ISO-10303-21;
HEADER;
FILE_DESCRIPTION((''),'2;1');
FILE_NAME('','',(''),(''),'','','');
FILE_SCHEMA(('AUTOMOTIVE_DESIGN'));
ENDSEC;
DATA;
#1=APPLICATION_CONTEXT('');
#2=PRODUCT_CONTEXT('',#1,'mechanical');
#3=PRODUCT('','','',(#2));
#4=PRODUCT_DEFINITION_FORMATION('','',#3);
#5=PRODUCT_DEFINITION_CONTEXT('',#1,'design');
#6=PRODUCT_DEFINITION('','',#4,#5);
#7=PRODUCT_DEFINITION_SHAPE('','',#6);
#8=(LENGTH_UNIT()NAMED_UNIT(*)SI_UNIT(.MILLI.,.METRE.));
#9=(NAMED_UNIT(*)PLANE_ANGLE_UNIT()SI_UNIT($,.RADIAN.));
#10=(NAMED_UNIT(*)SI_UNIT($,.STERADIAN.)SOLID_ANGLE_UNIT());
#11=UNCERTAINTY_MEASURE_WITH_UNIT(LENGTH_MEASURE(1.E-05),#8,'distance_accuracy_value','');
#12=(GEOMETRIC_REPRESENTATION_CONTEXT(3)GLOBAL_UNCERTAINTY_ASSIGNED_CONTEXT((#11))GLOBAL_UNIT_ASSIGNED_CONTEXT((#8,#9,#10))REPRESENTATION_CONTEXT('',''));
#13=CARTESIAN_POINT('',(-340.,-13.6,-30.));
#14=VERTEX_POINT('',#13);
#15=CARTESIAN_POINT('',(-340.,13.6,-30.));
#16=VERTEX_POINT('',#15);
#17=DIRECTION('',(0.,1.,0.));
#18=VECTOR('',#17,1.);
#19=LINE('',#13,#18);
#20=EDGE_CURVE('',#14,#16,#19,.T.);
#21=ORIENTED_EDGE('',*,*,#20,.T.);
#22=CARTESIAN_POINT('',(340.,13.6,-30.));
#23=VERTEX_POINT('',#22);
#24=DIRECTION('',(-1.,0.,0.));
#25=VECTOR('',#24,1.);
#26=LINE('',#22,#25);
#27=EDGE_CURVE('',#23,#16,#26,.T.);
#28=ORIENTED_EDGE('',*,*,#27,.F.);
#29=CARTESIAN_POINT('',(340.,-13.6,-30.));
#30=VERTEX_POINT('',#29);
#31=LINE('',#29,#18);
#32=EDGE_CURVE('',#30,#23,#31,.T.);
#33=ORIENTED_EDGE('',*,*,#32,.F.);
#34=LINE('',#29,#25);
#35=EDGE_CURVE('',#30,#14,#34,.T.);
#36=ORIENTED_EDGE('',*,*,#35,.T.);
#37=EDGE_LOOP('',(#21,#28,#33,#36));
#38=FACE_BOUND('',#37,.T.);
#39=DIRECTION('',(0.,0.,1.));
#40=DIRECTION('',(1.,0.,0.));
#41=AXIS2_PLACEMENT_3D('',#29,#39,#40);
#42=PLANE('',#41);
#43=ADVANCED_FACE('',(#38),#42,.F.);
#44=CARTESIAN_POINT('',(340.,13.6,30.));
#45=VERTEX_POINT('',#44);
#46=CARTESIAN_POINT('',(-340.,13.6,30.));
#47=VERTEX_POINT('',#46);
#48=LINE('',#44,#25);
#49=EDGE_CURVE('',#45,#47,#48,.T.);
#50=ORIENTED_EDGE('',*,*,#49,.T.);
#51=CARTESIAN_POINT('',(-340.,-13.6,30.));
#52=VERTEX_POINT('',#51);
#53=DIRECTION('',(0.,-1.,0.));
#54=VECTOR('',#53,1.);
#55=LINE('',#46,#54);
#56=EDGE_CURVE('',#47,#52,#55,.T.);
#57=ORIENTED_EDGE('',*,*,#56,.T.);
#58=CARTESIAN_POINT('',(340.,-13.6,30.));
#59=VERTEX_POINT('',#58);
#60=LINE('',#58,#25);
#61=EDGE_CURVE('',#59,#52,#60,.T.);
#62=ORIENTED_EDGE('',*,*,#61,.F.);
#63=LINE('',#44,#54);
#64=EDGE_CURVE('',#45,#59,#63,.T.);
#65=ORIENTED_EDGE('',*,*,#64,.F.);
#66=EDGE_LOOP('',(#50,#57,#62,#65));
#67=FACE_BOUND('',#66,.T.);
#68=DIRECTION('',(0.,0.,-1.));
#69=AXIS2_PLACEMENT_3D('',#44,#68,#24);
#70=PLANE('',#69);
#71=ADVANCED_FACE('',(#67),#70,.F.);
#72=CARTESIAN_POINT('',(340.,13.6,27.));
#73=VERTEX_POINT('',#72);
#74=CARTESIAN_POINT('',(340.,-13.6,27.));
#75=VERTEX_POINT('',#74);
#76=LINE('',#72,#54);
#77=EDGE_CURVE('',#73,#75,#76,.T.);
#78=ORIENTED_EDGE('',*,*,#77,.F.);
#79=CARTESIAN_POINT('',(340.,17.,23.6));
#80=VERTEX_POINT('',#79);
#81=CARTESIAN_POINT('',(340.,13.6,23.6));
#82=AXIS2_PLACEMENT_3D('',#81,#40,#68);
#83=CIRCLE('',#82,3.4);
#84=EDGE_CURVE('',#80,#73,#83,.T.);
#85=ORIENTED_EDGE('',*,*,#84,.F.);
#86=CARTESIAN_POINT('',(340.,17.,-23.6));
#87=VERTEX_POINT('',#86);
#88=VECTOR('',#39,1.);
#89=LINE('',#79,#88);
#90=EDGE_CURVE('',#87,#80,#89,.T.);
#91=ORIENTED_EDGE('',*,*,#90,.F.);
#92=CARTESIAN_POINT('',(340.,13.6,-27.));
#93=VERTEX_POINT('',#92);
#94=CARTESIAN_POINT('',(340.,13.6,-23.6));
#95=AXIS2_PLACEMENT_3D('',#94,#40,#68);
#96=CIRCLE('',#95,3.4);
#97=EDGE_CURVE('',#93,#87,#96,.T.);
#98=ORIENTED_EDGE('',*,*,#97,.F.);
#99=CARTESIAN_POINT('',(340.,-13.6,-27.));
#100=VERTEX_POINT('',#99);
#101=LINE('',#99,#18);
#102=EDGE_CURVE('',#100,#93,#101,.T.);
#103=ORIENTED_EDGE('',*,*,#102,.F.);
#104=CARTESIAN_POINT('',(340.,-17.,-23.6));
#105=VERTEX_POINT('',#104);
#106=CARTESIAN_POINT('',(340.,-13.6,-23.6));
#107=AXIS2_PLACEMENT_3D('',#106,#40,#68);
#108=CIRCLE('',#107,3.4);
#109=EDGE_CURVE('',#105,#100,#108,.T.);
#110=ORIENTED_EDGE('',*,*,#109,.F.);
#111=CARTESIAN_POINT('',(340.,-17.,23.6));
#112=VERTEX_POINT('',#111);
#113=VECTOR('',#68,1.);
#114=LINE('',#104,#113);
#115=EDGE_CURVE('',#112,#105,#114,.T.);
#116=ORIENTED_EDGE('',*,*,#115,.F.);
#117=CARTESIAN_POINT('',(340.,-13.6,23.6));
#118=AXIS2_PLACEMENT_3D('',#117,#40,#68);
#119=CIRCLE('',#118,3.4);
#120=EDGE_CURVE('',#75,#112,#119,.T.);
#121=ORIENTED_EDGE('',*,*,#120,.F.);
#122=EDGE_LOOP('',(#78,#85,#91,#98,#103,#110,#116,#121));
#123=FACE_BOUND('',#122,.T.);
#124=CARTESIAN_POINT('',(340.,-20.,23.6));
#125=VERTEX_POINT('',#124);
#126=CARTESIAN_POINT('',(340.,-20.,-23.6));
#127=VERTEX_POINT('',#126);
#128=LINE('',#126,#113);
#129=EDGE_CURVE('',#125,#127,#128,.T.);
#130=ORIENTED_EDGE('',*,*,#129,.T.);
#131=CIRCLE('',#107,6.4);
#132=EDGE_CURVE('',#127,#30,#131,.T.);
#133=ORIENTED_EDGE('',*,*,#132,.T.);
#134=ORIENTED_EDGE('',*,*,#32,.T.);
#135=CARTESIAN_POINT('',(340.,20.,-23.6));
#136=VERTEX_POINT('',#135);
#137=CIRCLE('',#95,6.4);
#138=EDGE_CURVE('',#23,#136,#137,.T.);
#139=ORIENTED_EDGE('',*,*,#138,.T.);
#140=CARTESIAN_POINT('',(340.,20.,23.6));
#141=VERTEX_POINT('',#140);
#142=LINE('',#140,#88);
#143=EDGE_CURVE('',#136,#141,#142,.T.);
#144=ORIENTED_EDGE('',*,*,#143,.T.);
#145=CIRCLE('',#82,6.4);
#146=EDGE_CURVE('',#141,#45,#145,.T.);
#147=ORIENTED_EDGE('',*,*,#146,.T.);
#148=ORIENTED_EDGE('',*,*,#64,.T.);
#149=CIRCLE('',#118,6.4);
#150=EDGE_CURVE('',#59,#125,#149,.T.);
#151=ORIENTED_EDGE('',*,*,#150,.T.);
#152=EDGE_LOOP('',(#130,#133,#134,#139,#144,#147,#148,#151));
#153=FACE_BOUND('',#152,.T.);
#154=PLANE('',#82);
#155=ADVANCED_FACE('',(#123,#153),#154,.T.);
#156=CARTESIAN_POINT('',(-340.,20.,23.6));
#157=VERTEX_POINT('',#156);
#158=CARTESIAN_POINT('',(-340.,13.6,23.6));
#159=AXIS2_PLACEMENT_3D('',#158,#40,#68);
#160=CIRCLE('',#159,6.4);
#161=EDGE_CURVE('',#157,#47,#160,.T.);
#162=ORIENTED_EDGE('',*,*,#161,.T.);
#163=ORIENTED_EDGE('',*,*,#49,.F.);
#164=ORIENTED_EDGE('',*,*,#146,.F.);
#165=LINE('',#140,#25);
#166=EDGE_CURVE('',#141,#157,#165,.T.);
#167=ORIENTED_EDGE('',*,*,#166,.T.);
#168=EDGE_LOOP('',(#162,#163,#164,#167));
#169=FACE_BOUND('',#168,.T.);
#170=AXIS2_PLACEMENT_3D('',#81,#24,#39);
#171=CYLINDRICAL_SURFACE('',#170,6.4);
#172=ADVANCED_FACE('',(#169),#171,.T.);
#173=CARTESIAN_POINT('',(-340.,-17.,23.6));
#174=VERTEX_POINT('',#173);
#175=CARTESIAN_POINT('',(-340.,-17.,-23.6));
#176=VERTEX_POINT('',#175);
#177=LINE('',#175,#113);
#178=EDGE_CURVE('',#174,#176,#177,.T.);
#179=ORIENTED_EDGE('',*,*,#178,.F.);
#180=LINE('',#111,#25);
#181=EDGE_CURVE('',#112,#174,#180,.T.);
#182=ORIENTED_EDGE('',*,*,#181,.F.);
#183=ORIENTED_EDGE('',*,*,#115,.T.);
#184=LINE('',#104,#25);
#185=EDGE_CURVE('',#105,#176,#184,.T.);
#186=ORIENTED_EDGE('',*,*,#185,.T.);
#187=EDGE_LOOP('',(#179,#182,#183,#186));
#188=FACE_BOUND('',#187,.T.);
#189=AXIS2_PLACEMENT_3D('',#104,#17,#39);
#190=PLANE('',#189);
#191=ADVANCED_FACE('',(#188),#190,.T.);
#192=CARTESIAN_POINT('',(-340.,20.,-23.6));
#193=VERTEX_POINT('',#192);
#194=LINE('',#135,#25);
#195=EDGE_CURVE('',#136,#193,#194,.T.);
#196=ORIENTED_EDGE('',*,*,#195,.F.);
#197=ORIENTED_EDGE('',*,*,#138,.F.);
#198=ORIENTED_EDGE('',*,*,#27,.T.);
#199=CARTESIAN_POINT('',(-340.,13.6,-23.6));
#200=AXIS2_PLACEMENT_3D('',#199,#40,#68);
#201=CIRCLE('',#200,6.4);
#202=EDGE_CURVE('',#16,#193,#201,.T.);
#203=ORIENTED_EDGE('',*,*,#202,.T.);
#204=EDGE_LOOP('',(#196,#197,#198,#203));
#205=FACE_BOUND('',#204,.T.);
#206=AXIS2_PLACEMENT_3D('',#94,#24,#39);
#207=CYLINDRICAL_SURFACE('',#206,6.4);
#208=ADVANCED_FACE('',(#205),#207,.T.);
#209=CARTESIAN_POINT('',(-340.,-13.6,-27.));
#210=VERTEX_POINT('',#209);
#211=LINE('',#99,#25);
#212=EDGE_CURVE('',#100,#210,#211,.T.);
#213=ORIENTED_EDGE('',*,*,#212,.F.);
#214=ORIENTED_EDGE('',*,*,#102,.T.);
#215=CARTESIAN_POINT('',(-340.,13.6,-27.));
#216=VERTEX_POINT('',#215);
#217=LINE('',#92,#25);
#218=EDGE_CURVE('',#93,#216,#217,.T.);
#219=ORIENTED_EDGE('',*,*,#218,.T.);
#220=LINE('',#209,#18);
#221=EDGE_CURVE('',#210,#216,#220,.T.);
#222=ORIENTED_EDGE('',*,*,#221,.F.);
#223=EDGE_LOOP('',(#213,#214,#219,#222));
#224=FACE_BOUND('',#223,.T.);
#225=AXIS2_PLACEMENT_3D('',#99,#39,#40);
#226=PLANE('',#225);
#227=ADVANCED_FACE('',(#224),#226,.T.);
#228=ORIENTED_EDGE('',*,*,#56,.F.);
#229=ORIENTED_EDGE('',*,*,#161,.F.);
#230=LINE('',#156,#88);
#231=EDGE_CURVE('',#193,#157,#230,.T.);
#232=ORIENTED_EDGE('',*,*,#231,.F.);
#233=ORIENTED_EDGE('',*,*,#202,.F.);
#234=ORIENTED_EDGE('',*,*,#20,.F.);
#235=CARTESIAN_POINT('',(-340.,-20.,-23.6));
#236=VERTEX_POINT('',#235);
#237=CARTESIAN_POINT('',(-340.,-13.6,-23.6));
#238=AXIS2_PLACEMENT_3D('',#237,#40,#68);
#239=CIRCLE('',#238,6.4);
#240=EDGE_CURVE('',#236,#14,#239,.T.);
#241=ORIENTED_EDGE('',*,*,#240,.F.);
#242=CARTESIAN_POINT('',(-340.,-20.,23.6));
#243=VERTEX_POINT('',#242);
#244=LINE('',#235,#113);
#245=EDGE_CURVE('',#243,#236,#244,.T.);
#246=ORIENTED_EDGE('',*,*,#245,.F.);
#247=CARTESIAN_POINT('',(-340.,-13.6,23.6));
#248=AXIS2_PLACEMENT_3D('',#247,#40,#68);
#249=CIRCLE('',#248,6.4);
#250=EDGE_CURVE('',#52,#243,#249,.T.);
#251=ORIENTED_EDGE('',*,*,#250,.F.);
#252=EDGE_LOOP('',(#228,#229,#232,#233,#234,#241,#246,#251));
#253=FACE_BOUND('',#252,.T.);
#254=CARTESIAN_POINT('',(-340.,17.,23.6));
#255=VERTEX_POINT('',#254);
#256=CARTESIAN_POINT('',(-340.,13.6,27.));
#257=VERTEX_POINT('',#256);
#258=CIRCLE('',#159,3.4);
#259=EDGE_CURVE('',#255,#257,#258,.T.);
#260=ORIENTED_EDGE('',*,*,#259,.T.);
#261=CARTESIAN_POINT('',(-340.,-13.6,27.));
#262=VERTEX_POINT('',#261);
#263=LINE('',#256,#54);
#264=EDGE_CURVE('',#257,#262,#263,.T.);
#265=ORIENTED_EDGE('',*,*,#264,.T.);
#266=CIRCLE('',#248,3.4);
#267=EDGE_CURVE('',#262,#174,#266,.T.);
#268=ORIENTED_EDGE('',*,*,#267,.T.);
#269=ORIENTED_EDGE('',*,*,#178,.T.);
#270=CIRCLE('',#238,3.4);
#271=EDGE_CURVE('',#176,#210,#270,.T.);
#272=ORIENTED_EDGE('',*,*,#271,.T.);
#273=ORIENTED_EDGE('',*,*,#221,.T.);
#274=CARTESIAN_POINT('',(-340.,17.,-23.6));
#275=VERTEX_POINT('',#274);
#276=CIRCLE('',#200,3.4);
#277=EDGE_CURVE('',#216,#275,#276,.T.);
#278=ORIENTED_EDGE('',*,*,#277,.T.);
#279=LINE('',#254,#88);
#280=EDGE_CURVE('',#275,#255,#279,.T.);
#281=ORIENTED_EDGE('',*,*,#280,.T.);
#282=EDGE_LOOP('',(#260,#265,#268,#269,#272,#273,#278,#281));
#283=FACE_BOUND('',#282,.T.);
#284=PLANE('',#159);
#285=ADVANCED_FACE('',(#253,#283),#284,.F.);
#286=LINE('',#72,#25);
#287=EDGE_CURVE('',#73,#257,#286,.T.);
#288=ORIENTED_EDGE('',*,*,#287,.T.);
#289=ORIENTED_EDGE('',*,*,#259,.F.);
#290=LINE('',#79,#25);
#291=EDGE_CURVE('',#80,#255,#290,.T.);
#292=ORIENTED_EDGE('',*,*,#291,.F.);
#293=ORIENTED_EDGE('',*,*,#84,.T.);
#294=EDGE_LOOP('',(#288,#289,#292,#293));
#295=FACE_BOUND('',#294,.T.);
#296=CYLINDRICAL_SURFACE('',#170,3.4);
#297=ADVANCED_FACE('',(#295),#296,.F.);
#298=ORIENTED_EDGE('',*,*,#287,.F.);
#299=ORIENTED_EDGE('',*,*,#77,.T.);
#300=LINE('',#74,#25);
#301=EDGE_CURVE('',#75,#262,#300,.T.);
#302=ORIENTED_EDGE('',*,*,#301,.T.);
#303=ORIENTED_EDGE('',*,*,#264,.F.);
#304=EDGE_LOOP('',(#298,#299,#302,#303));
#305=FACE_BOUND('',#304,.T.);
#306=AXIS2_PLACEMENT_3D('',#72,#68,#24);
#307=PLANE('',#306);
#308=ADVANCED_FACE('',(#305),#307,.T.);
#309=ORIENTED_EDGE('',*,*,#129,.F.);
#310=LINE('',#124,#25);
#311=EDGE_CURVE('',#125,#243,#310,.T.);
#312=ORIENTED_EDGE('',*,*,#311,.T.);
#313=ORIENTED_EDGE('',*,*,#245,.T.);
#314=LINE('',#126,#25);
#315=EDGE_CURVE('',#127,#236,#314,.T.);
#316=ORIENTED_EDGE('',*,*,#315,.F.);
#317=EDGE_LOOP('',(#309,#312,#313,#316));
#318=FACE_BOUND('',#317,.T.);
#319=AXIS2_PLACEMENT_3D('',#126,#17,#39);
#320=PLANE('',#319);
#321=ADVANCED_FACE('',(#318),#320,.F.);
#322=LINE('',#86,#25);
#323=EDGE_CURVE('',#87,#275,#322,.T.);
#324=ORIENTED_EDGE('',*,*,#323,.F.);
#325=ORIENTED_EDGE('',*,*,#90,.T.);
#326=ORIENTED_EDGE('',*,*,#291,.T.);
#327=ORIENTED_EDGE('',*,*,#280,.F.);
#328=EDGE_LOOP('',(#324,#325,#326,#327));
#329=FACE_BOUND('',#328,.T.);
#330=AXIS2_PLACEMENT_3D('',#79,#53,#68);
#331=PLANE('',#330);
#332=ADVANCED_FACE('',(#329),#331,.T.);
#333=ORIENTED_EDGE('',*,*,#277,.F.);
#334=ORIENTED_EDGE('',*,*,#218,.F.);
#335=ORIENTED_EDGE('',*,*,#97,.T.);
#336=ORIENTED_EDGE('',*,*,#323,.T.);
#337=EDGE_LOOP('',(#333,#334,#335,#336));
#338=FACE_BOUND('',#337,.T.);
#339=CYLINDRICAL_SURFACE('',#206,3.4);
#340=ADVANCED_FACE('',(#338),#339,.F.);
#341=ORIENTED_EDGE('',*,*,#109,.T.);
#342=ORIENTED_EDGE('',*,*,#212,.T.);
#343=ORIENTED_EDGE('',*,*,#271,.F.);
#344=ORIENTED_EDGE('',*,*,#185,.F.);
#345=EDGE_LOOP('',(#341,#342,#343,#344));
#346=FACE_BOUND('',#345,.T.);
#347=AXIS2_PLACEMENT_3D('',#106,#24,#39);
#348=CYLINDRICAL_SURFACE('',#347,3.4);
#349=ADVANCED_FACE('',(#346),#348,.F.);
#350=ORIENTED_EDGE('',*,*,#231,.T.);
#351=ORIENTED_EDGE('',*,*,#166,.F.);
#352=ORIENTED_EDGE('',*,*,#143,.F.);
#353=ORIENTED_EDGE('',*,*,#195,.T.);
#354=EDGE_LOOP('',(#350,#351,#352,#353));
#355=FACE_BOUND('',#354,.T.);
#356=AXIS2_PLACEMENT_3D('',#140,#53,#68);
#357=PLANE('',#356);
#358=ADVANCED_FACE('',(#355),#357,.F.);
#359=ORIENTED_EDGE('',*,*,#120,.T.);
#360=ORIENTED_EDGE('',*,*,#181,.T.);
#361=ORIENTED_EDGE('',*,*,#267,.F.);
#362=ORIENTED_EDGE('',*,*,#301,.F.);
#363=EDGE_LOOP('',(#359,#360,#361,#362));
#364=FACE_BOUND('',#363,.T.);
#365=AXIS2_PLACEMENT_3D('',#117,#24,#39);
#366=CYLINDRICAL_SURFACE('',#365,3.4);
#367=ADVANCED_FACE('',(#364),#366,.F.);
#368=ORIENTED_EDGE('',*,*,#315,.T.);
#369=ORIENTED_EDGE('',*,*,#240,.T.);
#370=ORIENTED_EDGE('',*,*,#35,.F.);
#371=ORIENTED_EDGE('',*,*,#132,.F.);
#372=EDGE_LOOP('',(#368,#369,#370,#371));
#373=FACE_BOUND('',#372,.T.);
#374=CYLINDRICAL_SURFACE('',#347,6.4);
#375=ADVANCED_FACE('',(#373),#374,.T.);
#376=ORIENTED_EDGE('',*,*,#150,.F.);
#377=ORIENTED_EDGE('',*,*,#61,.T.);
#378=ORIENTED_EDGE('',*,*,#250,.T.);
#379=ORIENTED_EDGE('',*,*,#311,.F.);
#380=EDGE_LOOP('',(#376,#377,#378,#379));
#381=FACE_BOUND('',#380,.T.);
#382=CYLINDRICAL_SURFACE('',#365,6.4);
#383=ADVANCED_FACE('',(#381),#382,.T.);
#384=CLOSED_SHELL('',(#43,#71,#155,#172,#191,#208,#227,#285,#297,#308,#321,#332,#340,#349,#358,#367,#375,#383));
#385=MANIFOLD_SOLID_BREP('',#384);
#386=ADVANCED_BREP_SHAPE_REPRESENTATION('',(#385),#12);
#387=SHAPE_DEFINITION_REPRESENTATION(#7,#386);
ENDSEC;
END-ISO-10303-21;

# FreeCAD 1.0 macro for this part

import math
import FreeCAD as App
import Part
import Sketcher
Q = App.Units.Quantity

doc = App.newDocument("Part")
body = doc.addObject("PartDesign::Body", "Body")

# Sketch on YZ plane
sketch1 = doc.addObject("Sketcher::SketchObject", "Sketch")
body.addObject(sketch1)
sketch1.AttachmentSupport = (doc.YZ_Plane, [""])
sketch1.MapMode = "FlatFace"
sketch1.AttachmentOffset = App.Placement(App.Vector(0, 0, -340), App.Rotation())
sketch1.addGeometry(Part.LineSegment(App.Vector(-13.6, -30, 0), App.Vector(13.6, -30, 0)), False)
sketch1.addGeometry(Part.ArcOfCircle(Part.Circle(App.Vector(13.6, -23.6, 0), App.Vector(0, 0, 1), 6.4), math.radians(-90), math.radians(0)), False)
sketch1.addGeometry(Part.LineSegment(App.Vector(20, -23.6, 0), App.Vector(20, 23.6, 0)), False)
sketch1.addGeometry(Part.ArcOfCircle(Part.Circle(App.Vector(13.6, 23.6, 0), App.Vector(0, 0, 1), 6.4), math.radians(0), math.radians(90)), False)
sketch1.addGeometry(Part.LineSegment(App.Vector(13.6, 30, 0), App.Vector(-13.6, 30, 0)), False)
sketch1.addGeometry(Part.ArcOfCircle(Part.Circle(App.Vector(-13.6, 23.6, 0), App.Vector(0, 0, 1), 6.4), math.radians(90), math.radians(180)), False)
sketch1.addGeometry(Part.LineSegment(App.Vector(-20, 23.6, 0), App.Vector(-20, -23.6, 0)), False)
sketch1.addGeometry(Part.ArcOfCircle(Part.Circle(App.Vector(-13.6, -23.6, 0), App.Vector(0, 0, 1), 6.4), math.radians(180), math.radians(270)), False)
sketch1.addGeometry(Part.LineSegment(App.Vector(13.6, -27, 0), App.Vector(-13.6, -27, 0)), False)
sketch1.addGeometry(Part.ArcOfCircle(Part.Circle(App.Vector(-13.6, -23.6, 0), App.Vector(0, 0, 1), 3.4), math.radians(180), math.radians(270)), False)
sketch1.addGeometry(Part.LineSegment(App.Vector(-17, -23.6, 0), App.Vector(-17, 23.6, 0)), False)
sketch1.addGeometry(Part.ArcOfCircle(Part.Circle(App.Vector(-13.6, 23.6, 0), App.Vector(0, 0, 1), 3.4), math.radians(90), math.radians(180)), False)
sketch1.addGeometry(Part.LineSegment(App.Vector(-13.6, 27, 0), App.Vector(13.6, 27, 0)), False)
sketch1.addGeometry(Part.ArcOfCircle(Part.Circle(App.Vector(13.6, 23.6, 0), App.Vector(0, 0, 1), 3.4), math.radians(0), math.radians(90)), False)
sketch1.addGeometry(Part.LineSegment(App.Vector(17, 23.6, 0), App.Vector(17, -23.6, 0)), False)
sketch1.addGeometry(Part.ArcOfCircle(Part.Circle(App.Vector(13.6, -23.6, 0), App.Vector(0, 0, 1), 3.4), math.radians(-90), math.radians(0)), False)
sketch1.addConstraint(Sketcher.Constraint("Tangent", 0, 2, 1, 1))
sketch1.addConstraint(Sketcher.Constraint("Tangent", 1, 2, 2, 1))
sketch1.addConstraint(Sketcher.Constraint("Tangent", 2, 2, 3, 1))
sketch1.addConstraint(Sketcher.Constraint("Tangent", 3, 2, 4, 1))
sketch1.addConstraint(Sketcher.Constraint("Tangent", 4, 2, 5, 1))
sketch1.addConstraint(Sketcher.Constraint("Tangent", 5, 2, 6, 1))
sketch1.addConstraint(Sketcher.Constraint("Tangent", 6, 2, 7, 1))
sketch1.addConstraint(Sketcher.Constraint("Tangent", 7, 2, 0, 1))
sketch1.addConstraint(Sketcher.Constraint("Tangent", 8, 2, 9, 2))
sketch1.addConstraint(Sketcher.Constraint("Tangent", 9, 1, 10, 1))
sketch1.addConstraint(Sketcher.Constraint("Tangent", 10, 2, 11, 2))
sketch1.addConstraint(Sketcher.Constraint("Tangent", 11, 1, 12, 1))
sketch1.addConstraint(Sketcher.Constraint("Tangent", 12, 2, 13, 2))
sketch1.addConstraint(Sketcher.Constraint("Tangent", 13, 1, 14, 1))
sketch1.addConstraint(Sketcher.Constraint("Tangent", 14, 2, 15, 2))
sketch1.addConstraint(Sketcher.Constraint("Tangent", 15, 1, 8, 1))
sketch1.addConstraint(Sketcher.Constraint("Horizontal", 0))
sketch1.addConstraint(Sketcher.Constraint("Vertical", 2))
sketch1.addConstraint(Sketcher.Constraint("Horizontal", 4))
sketch1.addConstraint(Sketcher.Constraint("Vertical", 6))
sketch1.addConstraint(Sketcher.Constraint("Horizontal", 8))
sketch1.addConstraint(Sketcher.Constraint("Vertical", 10))
sketch1.addConstraint(Sketcher.Constraint("Horizontal", 12))
sketch1.addConstraint(Sketcher.Constraint("Vertical", 14))
sketch1.addConstraint(Sketcher.Constraint("Coincident", 9, 3, 7, 3))
sketch1.addConstraint(Sketcher.Constraint("Coincident", 11, 3, 5, 3))
sketch1.addConstraint(Sketcher.Constraint("Coincident", 13, 3, 3, 3))
sketch1.addConstraint(Sketcher.Constraint("Equal", 1, 3))
sketch1.addConstraint(Sketcher.Constraint("Equal", 3, 5))
sketch1.addConstraint(Sketcher.Constraint("Equal", 5, 7))
sketch1.addConstraint(Sketcher.Constraint("Equal", 13, 15))
sketch1.addConstraint(Sketcher.Constraint("Symmetric", 1, 3, 5, 3, -1, 1))
sketch1.addConstraint(Sketcher.Constraint("Radius", 1, Q("6.4 mm")))
sketch1.addConstraint(Sketcher.Constraint("Radius", 9, Q("3.4 mm")))
sketch1.addConstraint(Sketcher.Constraint("DistanceX", 0, 1, 0, 2, Q("27.2 mm")))
sketch1.addConstraint(Sketcher.Constraint("DistanceY", 2, 1, 2, 2, Q("47.2 mm")))
pad1 = doc.addObject("PartDesign::Pad", "Pad")
body.addObject(pad1)
pad1.Profile = sketch1
pad1.Length = 680

doc.recompute()
